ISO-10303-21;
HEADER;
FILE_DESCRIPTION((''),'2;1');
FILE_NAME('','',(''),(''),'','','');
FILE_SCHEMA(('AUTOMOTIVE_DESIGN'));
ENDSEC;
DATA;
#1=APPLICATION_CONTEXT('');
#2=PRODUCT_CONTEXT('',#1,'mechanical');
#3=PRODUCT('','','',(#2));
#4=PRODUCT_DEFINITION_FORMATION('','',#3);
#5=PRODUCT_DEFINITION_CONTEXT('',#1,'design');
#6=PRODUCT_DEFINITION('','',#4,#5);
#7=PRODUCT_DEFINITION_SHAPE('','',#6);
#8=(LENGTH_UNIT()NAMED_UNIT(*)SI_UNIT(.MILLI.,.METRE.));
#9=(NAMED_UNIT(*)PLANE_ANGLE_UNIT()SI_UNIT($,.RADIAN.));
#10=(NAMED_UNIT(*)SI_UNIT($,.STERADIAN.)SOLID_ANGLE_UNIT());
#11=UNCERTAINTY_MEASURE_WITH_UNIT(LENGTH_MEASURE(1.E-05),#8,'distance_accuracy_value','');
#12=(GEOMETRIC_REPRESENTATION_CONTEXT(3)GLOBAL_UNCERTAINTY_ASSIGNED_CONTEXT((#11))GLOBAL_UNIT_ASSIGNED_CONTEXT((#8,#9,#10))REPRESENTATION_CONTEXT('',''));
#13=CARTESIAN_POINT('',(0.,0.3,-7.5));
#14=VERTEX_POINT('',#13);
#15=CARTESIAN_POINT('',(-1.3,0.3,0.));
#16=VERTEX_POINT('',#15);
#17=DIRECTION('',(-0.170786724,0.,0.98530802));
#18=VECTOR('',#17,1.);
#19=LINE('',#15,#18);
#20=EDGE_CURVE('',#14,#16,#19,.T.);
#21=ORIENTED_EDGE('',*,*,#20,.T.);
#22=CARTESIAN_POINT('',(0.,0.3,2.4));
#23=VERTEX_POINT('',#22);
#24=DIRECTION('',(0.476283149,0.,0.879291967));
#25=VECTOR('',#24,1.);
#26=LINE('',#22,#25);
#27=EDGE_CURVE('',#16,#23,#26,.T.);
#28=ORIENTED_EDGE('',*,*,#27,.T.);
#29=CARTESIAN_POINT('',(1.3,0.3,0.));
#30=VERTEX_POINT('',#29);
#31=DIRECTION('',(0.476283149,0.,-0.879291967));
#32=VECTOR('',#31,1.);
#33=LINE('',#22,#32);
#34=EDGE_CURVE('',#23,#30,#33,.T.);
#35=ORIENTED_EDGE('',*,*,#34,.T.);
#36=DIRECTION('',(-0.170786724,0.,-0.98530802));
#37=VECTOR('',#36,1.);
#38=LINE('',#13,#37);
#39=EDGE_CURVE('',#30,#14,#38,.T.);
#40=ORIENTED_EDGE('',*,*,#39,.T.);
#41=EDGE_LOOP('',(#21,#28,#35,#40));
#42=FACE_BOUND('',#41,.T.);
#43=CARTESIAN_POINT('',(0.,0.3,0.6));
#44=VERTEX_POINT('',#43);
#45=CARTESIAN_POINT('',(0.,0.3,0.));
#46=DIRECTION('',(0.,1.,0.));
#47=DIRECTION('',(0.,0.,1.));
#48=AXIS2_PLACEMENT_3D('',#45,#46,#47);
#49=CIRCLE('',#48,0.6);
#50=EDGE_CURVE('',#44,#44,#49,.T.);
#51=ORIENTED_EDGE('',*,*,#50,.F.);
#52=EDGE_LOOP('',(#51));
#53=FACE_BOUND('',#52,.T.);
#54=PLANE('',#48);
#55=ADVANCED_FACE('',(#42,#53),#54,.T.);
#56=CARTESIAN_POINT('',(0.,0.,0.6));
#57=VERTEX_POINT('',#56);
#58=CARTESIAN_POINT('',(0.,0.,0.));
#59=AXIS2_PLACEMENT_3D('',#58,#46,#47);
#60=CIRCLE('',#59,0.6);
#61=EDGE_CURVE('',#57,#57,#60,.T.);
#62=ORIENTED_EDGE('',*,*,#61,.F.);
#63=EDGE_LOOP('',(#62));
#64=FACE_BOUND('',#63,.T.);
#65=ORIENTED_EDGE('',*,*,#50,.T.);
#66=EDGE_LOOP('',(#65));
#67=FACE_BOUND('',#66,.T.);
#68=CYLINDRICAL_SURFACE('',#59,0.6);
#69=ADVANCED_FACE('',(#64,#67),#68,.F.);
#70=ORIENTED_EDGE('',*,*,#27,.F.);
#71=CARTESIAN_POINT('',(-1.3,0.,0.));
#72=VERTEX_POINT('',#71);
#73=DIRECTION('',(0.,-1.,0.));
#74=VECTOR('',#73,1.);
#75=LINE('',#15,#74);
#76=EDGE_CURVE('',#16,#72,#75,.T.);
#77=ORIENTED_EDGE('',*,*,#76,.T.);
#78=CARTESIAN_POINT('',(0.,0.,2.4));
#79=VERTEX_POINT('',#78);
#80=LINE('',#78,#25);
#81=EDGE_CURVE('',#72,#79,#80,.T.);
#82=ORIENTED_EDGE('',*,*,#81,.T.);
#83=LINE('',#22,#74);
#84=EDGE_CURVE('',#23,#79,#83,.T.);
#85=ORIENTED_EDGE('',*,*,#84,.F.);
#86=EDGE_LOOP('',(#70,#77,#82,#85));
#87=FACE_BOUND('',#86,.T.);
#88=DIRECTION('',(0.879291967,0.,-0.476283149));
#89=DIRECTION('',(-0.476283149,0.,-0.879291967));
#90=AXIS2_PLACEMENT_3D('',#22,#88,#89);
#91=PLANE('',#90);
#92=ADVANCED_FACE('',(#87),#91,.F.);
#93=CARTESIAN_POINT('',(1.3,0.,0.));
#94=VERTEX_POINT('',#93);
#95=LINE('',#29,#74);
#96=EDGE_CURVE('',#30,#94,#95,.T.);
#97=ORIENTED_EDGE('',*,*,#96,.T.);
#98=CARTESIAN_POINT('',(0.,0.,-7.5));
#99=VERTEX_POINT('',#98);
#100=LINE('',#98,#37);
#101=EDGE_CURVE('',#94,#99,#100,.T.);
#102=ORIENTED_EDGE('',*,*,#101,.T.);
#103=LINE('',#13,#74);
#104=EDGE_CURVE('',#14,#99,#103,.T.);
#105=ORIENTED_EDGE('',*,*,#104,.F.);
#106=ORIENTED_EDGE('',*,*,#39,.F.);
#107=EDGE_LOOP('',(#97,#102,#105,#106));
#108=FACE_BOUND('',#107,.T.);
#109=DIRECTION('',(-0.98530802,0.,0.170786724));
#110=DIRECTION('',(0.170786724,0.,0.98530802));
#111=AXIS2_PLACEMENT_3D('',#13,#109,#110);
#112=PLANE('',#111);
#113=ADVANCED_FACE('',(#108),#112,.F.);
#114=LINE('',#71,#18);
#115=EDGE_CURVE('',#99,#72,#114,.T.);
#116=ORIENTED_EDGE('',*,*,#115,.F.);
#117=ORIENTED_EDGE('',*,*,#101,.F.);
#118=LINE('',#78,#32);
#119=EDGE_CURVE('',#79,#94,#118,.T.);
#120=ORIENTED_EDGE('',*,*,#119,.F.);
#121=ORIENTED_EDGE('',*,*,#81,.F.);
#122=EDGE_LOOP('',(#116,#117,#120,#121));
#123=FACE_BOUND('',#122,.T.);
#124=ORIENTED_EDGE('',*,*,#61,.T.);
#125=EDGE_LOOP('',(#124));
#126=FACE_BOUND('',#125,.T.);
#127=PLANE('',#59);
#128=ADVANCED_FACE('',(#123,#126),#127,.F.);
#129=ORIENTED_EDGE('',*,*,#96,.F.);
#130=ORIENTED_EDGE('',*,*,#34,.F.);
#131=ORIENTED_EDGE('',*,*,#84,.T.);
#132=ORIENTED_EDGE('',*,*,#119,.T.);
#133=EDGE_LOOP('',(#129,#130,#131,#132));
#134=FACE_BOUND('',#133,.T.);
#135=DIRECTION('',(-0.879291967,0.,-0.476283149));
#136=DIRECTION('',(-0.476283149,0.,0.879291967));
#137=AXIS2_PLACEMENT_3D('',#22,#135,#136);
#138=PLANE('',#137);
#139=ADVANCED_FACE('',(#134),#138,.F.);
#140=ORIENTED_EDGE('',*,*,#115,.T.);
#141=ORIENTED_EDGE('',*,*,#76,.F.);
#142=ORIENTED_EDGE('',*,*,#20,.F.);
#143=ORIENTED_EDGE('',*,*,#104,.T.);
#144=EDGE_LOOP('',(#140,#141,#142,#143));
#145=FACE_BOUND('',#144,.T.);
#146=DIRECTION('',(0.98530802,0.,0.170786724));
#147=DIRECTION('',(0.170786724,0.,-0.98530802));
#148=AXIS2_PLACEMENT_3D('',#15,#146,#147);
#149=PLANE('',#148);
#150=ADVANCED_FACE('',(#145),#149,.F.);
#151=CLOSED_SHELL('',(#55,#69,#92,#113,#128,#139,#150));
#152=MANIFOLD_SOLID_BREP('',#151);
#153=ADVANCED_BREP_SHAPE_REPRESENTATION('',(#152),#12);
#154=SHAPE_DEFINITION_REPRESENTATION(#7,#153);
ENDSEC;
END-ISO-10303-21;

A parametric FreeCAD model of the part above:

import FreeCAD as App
import Part
import Sketcher
Q = App.Units.Quantity

doc = App.newDocument("Part")
body = doc.addObject("PartDesign::Body", "Body")

# Sketch on XZ plane
sketch1 = body.newObject("Sketcher::SketchObject", "Sketch")
sketch1.AttachmentSupport = (doc.getObject("XZ_Plane"), [""])
sketch1.MapMode = "FlatFace"
sketch1.addGeometry([
    Part.LineSegment(App.Vector(0, -7.5, 0), App.Vector(-1.3, 0, 0)),
    Part.LineSegment(App.Vector(-1.3, 0, 0), App.Vector(0, 2.4, 0)),
    Part.LineSegment(App.Vector(0, 2.4, 0), App.Vector(1.3, 0, 0)),
    Part.LineSegment(App.Vector(1.3, 0, 0), App.Vector(0, -7.5, 0)),
], False)
sketch1.addConstraint([
    Sketcher.Constraint("Coincident", 0, 2, 1, 1),
    Sketcher.Constraint("Coincident", 1, 2, 2, 1),
    Sketcher.Constraint("Coincident", 2, 2, 3, 1),
    Sketcher.Constraint("Coincident", 3, 2, 0, 1),
    Sketcher.Constraint("Symmetric", 0, 2, 2, 2, -1, 1),
    Sketcher.Constraint("PointOnObject", 0, 2, -1),
    Sketcher.Constraint("PointOnObject", 1, 2, -2),
    Sketcher.Constraint("PointOnObject", 3, 2, -2),
    Sketcher.Constraint("DistanceX", 0, 2, -1, 1, Q("1.3 mm")),
    Sketcher.Constraint("DistanceY", -1, 1, 1, 2, Q("2.4 mm")),
    Sketcher.Constraint("DistanceY", 3, 2, -1, 1, Q("7.5 mm")),
])
pad1 = body.newObject("PartDesign::Pad", "Pad")
pad1.Profile = sketch1
pad1.Length = 0.3
pad1.Reversed = True

# Sketch on XZ plane
sketch2 = body.newObject("Sketcher::SketchObject", "Sketch001")
sketch2.AttachmentSupport = (doc.getObject("XZ_Plane"), [""])
sketch2.MapMode = "FlatFace"
sketch2.AttachmentOffset = App.Placement(App.Vector(0, 0, -0.3), App.Rotation())
sketch2.addGeometry(Part.Circle(App.Vector(0, 0, 0), App.Vector(0, 0, 1), 0.6), False)
sketch2.addConstraint([
    Sketcher.Constraint("Coincident", 0, 3, -1, 1),
    Sketcher.Constraint("Diameter", 0, Q("1.2 mm")),
])
pocket1 = body.newObject("PartDesign::Pocket", "Pocket")
pocket1.Profile = sketch2
pocket1.Length = 0.3
pocket1.Reversed = True

doc.recompute()
